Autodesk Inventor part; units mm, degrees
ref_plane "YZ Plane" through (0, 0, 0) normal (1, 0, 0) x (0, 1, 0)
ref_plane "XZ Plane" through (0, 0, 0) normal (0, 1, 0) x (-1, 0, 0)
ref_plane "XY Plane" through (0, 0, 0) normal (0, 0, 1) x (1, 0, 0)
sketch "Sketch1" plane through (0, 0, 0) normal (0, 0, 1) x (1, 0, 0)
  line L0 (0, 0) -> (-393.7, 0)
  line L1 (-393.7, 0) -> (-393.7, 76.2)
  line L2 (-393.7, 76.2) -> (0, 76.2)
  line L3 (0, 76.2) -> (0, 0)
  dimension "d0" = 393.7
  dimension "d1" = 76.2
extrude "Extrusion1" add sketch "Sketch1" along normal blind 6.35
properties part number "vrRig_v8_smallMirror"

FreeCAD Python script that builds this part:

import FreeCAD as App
import Part
import Sketcher

V = App.Vector
Q = App.Units.Quantity

doc = App.newDocument("Part")
body = doc.addObject("PartDesign::Body", "Body")

# Sketch on XY plane
sketch1 = body.newObject("Sketcher::SketchObject", "Sketch")
sketch1.AttachmentSupport = (doc.getObject("XY_Plane"), [""])
sketch1.MapMode = "FlatFace"
sketch1.addGeometry([
    Part.LineSegment(V(-394, 0, 0), V(0, 0, 0)),
    Part.LineSegment(V(0, 0, 0), V(0, 76, 0)),
    Part.LineSegment(V(0, 76, 0), V(-394, 76, 0)),
    Part.LineSegment(V(-394, 76, 0), V(-394, 0, 0)),
], False)
sketch1.addConstraint([
    Sketcher.Constraint("Coincident", 0, 2, 1, 1),
    Sketcher.Constraint("Coincident", 1, 2, 2, 1),
    Sketcher.Constraint("Coincident", 2, 2, 3, 1),
    Sketcher.Constraint("Coincident", 3, 2, 0, 1),
    Sketcher.Constraint("Horizontal", 0),
    Sketcher.Constraint("Vertical", 1),
    Sketcher.Constraint("Horizontal", 2),
    Sketcher.Constraint("Vertical", 3),
    Sketcher.Constraint("Coincident", 0, 2, -1, 1),
    Sketcher.Constraint("DistanceY", 1, 1, 1, 2, Q("3 in")),
    Sketcher.Constraint("DistanceX", 0, 1, 0, 2, Q("15.5 in")),
])
pad1 = body.newObject("PartDesign::Pad", "Pad")
pad1.Profile = sketch1
pad1.Length = Q("0.25 in")

doc.recompute()
